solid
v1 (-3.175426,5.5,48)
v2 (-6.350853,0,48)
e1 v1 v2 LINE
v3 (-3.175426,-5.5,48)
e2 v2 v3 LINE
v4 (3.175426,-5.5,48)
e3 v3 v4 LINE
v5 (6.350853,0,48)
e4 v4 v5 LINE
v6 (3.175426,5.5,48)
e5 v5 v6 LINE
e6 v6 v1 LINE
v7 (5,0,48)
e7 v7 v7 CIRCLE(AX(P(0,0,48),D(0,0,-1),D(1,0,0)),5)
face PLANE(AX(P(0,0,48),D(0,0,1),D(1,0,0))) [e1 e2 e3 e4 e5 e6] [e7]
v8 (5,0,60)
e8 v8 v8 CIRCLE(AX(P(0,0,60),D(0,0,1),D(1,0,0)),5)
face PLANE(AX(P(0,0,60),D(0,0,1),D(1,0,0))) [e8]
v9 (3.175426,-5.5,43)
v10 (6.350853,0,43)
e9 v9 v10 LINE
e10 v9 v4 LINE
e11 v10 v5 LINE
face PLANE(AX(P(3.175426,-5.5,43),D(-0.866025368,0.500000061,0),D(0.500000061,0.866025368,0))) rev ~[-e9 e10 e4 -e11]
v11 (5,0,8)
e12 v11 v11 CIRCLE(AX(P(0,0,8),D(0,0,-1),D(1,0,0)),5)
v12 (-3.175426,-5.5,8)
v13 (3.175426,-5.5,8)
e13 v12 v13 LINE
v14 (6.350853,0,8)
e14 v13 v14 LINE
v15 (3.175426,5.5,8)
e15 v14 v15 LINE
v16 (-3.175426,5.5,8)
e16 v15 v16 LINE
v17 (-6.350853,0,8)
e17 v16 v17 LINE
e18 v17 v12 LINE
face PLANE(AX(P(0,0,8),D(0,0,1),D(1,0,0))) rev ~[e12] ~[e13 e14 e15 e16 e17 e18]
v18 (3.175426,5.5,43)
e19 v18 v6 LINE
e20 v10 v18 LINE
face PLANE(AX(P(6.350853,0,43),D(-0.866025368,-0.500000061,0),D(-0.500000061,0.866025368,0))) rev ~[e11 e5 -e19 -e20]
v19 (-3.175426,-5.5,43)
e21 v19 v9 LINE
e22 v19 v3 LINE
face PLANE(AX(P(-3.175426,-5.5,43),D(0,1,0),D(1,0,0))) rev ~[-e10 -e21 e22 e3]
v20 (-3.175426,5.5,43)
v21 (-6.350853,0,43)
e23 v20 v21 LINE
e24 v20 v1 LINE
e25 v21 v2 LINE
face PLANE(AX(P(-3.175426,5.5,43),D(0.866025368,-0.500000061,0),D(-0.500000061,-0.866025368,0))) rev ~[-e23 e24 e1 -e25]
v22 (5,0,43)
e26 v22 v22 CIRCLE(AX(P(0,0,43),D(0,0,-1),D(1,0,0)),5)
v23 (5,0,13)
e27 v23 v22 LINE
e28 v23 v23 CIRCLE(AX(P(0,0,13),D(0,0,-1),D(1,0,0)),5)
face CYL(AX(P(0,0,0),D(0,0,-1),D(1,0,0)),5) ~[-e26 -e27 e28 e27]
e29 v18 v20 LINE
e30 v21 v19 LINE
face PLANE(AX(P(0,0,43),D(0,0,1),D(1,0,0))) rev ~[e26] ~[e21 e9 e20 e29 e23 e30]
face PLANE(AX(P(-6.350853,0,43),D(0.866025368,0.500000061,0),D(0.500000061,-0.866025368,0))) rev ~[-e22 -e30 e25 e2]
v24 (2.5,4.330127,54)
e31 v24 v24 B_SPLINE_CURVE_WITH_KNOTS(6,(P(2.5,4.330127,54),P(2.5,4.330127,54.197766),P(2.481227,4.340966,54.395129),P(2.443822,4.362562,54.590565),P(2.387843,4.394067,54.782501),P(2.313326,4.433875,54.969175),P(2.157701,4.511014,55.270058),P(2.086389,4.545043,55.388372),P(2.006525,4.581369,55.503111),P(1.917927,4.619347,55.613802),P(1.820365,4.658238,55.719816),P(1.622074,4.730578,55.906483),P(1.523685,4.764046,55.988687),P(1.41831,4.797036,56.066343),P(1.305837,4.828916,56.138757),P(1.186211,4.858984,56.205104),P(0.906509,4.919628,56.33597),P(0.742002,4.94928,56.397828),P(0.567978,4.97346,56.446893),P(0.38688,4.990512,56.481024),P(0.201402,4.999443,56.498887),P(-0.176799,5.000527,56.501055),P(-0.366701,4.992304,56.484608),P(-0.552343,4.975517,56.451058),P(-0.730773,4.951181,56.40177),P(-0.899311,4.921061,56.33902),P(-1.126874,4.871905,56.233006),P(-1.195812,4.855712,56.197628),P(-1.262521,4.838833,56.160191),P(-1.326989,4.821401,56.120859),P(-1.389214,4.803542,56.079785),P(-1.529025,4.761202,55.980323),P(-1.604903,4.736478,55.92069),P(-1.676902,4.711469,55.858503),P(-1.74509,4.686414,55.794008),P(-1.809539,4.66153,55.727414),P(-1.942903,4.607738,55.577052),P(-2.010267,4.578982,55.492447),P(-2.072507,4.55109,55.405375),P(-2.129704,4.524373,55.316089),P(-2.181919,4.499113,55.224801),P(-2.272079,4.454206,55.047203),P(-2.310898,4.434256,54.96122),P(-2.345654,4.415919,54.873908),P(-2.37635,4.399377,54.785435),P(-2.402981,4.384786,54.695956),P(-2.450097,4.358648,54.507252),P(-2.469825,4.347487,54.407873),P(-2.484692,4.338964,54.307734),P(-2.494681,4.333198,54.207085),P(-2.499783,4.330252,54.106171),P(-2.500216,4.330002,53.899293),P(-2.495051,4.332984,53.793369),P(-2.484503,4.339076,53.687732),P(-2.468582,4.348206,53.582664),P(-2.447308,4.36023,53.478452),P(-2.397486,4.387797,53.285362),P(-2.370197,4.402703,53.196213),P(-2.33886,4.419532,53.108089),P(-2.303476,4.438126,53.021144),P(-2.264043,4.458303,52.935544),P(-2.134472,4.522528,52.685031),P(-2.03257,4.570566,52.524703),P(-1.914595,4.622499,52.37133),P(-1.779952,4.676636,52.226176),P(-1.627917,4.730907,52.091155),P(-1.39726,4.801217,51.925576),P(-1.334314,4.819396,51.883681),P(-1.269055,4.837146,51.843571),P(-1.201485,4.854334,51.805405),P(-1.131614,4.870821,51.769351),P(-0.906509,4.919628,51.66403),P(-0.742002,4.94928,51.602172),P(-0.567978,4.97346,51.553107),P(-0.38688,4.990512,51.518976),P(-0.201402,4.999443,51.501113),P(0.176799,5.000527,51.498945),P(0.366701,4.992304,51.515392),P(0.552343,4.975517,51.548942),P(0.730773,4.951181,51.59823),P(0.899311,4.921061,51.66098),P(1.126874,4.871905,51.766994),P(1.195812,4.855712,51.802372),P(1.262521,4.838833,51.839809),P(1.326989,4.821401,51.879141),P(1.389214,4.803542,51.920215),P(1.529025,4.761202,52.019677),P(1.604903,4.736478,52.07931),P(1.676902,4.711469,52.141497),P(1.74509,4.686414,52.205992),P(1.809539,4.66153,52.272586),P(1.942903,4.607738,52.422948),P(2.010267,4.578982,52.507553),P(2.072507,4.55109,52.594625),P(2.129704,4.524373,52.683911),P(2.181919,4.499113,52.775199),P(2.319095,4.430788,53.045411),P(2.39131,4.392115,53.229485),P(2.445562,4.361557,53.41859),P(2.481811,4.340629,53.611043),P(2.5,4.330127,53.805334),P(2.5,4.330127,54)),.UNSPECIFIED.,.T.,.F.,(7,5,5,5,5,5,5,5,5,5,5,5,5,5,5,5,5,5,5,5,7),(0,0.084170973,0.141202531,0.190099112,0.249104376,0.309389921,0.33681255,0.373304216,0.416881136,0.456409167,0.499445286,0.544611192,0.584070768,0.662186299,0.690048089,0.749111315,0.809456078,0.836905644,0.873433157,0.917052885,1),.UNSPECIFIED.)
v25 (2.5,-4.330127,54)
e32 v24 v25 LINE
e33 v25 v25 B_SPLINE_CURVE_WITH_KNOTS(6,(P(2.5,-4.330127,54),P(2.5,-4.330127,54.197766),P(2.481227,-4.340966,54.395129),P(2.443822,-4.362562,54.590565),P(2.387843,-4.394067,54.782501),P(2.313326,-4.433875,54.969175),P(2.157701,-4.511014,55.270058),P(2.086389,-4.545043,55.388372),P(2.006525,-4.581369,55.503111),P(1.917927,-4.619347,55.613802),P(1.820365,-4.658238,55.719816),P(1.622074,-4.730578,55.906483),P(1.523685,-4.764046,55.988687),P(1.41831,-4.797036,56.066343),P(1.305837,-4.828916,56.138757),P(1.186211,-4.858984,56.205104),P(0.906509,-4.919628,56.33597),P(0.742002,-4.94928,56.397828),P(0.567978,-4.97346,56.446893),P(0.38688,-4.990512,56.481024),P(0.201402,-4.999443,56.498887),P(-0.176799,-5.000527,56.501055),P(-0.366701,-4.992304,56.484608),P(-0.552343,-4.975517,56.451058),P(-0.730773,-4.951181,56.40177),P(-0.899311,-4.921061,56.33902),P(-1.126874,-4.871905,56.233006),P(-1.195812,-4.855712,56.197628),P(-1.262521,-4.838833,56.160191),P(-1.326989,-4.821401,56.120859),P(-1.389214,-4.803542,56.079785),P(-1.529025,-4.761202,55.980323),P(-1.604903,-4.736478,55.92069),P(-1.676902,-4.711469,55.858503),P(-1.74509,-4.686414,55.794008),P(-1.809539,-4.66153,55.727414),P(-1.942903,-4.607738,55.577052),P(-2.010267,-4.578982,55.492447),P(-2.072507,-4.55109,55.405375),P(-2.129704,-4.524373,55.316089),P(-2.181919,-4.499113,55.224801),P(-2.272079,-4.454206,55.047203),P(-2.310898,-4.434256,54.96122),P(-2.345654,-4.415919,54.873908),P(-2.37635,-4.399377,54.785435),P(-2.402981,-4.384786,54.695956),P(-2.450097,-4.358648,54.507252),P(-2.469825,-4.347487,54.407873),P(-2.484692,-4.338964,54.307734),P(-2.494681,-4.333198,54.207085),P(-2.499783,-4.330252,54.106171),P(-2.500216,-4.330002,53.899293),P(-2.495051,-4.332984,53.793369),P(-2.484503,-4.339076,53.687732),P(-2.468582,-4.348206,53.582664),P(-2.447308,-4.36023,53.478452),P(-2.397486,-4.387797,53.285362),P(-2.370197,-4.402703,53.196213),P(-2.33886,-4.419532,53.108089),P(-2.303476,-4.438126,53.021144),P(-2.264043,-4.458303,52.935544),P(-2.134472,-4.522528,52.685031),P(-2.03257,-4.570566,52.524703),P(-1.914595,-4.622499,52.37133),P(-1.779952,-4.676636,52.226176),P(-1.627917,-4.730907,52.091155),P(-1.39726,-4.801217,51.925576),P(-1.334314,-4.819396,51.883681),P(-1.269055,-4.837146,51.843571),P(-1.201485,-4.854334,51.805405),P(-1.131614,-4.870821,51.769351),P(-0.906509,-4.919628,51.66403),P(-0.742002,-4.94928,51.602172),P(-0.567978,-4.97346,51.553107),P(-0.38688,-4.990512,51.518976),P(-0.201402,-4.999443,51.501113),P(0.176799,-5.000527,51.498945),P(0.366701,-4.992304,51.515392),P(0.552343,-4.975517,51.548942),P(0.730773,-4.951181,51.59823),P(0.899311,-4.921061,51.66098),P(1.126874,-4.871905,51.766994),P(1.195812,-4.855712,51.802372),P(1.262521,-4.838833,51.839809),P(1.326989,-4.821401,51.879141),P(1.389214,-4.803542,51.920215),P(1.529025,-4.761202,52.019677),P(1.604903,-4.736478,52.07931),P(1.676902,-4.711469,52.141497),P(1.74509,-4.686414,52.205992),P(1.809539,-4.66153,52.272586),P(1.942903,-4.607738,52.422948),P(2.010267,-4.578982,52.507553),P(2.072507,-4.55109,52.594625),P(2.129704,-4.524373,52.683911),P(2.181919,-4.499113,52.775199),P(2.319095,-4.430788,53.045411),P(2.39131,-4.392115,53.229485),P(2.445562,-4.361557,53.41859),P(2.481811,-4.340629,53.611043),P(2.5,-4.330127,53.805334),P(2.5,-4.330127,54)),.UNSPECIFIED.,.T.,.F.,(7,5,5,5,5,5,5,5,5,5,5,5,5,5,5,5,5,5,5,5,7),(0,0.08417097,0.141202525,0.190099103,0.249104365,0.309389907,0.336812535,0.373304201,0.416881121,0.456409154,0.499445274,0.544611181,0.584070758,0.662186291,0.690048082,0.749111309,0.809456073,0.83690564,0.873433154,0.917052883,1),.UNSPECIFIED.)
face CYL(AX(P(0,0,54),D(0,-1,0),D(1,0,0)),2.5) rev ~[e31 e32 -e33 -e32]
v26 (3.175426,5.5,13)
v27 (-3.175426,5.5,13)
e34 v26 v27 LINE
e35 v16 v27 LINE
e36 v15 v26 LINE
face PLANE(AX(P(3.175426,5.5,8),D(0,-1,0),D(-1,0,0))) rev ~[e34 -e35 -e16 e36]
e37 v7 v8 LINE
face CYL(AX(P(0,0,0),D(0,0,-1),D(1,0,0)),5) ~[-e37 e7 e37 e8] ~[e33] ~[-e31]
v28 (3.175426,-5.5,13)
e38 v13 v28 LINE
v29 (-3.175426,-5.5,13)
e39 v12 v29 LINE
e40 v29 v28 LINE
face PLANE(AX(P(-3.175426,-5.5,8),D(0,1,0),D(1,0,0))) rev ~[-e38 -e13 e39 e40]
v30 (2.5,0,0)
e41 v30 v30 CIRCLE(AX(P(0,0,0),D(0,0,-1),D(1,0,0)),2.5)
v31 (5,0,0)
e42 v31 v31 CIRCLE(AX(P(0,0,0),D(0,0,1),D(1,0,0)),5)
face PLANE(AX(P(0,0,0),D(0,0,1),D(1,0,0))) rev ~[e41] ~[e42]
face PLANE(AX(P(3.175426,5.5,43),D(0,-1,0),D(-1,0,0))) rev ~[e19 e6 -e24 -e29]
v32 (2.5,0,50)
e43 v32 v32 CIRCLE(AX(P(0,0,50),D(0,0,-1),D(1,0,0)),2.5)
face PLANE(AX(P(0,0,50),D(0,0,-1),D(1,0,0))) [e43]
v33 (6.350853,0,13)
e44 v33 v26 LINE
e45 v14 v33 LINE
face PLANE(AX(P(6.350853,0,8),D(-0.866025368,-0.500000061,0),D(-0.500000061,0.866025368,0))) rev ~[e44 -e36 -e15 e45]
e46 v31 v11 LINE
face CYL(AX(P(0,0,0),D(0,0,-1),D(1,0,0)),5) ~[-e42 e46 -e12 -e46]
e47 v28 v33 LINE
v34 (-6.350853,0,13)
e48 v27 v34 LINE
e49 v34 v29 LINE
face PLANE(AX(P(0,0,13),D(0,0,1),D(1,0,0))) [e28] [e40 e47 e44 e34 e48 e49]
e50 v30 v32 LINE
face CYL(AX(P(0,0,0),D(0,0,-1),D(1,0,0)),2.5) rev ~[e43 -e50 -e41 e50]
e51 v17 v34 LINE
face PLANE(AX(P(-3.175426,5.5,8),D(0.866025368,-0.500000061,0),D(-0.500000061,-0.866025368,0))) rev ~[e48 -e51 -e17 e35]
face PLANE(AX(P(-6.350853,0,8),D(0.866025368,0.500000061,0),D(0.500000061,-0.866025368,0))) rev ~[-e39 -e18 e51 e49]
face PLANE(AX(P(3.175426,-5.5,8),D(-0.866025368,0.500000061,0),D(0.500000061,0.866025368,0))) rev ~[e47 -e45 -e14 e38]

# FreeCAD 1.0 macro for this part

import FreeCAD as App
import Part
import Sketcher
Q = App.Units.Quantity

doc = App.newDocument("Part")
body = doc.addObject("PartDesign::Body", "Body")

sketch1 = body.newObject("Sketcher::SketchObject", "Sketch")
sketch1.AttachmentSupport = (doc.getObject("XY_Plane"), [""])
sketch1.MapMode = "FlatFace"
sketch1.addGeometry(Part.Circle(App.Vector(0, 0, 0), App.Vector(0, 0, 1), 5), False)
sketch1.addConstraint([
    Sketcher.Constraint("Coincident", 0, 3, -1, 1),
    Sketcher.Constraint("Diameter", 0, 10.0),
])
pad1 = body.newObject("PartDesign::Pad", "Pad")
pad1.Profile = sketch1
pad1.Length = 60

sketch2 = body.newObject("Sketcher::SketchObject", "Sketch001")
sketch2.AttachmentSupport = (doc.getObject("XY_Plane"), [""])
sketch2.MapMode = "FlatFace"
sketch2.AttachmentOffset = App.Placement(App.Vector(0, 0, 8), App.Rotation())
sketch2.addGeometry([
    Part.LineSegment(App.Vector(3, 6, 0), App.Vector(-3, 6, 0)),
    Part.LineSegment(App.Vector(-3, 6, 0), App.Vector(-6, 0, 0)),
    Part.LineSegment(App.Vector(-6, 0, 0), App.Vector(-3, -6, 0)),
    Part.LineSegment(App.Vector(-3, -6, 0), App.Vector(3, -6, 0)),
    Part.LineSegment(App.Vector(3, -6, 0), App.Vector(6, 0, 0)),
    Part.LineSegment(App.Vector(6, 0, 0), App.Vector(3, 6, 0)),
], False)
sketch2.addConstraint([
    Sketcher.Constraint("Coincident", 0, 2, 1, 1),
    Sketcher.Constraint("Coincident", 1, 2, 2, 1),
    Sketcher.Constraint("Coincident", 2, 2, 3, 1),
    Sketcher.Constraint("Coincident", 3, 2, 4, 1),
    Sketcher.Constraint("Coincident", 4, 2, 5, 1),
    Sketcher.Constraint("Coincident", 5, 2, 0, 1),
    Sketcher.Constraint("Horizontal", 0),
    Sketcher.Constraint("Horizontal", 3),
    Sketcher.Constraint("Symmetric", 0, 2, 3, 2, -1, 1),
    Sketcher.Constraint("Symmetric", 1, 2, 4, 2, -1, 1),
    Sketcher.Constraint("PointOnObject", 1, 2, -1),
    Sketcher.Constraint("Parallel", 2, 5),
    Sketcher.Constraint("Vertical", 0, 2, 2, 2),
    Sketcher.Constraint("Angle", 1, Q("-120.000004 deg")),
    Sketcher.Constraint("DistanceY", 2, 2, 0, 2, 11.0),
    Sketcher.Constraint("DistanceX", 0, 2, 0, 1, 6.350852),
])
pad2 = body.newObject("PartDesign::Pad", "Pad001")
pad2.Profile = sketch2
pad2.Length = 5

sketch3 = body.newObject("Sketcher::SketchObject", "Sketch002")
sketch3.AttachmentSupport = (doc.getObject("XY_Plane"), [""])
sketch3.MapMode = "FlatFace"
sketch3.AttachmentOffset = App.Placement(App.Vector(0, 0, 43), App.Rotation())
sketch3.addGeometry([
    Part.LineSegment(App.Vector(3, 6, 0), App.Vector(-3, 6, 0)),
    Part.LineSegment(App.Vector(-3, 6, 0), App.Vector(-6, 0, 0)),
    Part.LineSegment(App.Vector(-6, 0, 0), App.Vector(-3, -6, 0)),
    Part.LineSegment(App.Vector(-3, -6, 0), App.Vector(3, -6, 0)),
    Part.LineSegment(App.Vector(3, -6, 0), App.Vector(6, 0, 0)),
    Part.LineSegment(App.Vector(6, 0, 0), App.Vector(3, 6, 0)),
], False)
sketch3.addConstraint([
    Sketcher.Constraint("Coincident", 0, 2, 1, 1),
    Sketcher.Constraint("Coincident", 1, 2, 2, 1),
    Sketcher.Constraint("Coincident", 2, 2, 3, 1),
    Sketcher.Constraint("Coincident", 3, 2, 4, 1),
    Sketcher.Constraint("Coincident", 4, 2, 5, 1),
    Sketcher.Constraint("Coincident", 5, 2, 0, 1),
    Sketcher.Constraint("Horizontal", 0),
    Sketcher.Constraint("Horizontal", 3),
    Sketcher.Constraint("Symmetric", 0, 2, 3, 2, -1, 1),
    Sketcher.Constraint("Symmetric", 1, 2, 4, 2, -1, 1),
    Sketcher.Constraint("PointOnObject", 1, 2, -1),
    Sketcher.Constraint("Parallel", 2, 5),
    Sketcher.Constraint("Vertical", 0, 2, 2, 2),
    Sketcher.Constraint("Angle", 1, Q("-120.000004 deg")),
    Sketcher.Constraint("DistanceY", 2, 2, 0, 2, 11.0),
    Sketcher.Constraint("DistanceX", 0, 2, 0, 1, 6.350852),
])
pad3 = body.newObject("PartDesign::Pad", "Pad002")
pad3.Profile = sketch3
pad3.Length = 5

sketch4 = body.newObject("Sketcher::SketchObject", "Sketch003")
sketch4.AttachmentSupport = (doc.getObject("XZ_Plane"), [""])
sketch4.MapMode = "FlatFace"
sketch4.addGeometry(Part.Circle(App.Vector(0, 54, 0), App.Vector(0, 0, 1), 2.5), False)
sketch4.addConstraint([
    Sketcher.Constraint("PointOnObject", 0, 3, -2),
    Sketcher.Constraint("Diameter", 0, 5.0),
    Sketcher.Constraint("DistanceY", -1, 1, 0, 3, 54.0),
])
pocket1 = body.newObject("PartDesign::Pocket", "Pocket")
pocket1.Profile = sketch4
pocket1.Length = 25
pocket1.Midplane = True

sketch5 = body.newObject("Sketcher::SketchObject", "Sketch004")
sketch5.AttachmentSupport = (doc.getObject("XY_Plane"), [""])
sketch5.MapMode = "FlatFace"
sketch5.addGeometry(Part.Circle(App.Vector(0, 0, 0), App.Vector(0, 0, 1), 2.5), False)
sketch5.addConstraint([
    Sketcher.Constraint("Coincident", 0, 3, -1, 1),
    Sketcher.Constraint("Diameter", 0, 5.0),
])
pocket2 = body.newObject("PartDesign::Pocket", "Pocket001")
pocket2.Profile = sketch5
pocket2.Length = 50
pocket2.Reversed = True

doc.recompute()
